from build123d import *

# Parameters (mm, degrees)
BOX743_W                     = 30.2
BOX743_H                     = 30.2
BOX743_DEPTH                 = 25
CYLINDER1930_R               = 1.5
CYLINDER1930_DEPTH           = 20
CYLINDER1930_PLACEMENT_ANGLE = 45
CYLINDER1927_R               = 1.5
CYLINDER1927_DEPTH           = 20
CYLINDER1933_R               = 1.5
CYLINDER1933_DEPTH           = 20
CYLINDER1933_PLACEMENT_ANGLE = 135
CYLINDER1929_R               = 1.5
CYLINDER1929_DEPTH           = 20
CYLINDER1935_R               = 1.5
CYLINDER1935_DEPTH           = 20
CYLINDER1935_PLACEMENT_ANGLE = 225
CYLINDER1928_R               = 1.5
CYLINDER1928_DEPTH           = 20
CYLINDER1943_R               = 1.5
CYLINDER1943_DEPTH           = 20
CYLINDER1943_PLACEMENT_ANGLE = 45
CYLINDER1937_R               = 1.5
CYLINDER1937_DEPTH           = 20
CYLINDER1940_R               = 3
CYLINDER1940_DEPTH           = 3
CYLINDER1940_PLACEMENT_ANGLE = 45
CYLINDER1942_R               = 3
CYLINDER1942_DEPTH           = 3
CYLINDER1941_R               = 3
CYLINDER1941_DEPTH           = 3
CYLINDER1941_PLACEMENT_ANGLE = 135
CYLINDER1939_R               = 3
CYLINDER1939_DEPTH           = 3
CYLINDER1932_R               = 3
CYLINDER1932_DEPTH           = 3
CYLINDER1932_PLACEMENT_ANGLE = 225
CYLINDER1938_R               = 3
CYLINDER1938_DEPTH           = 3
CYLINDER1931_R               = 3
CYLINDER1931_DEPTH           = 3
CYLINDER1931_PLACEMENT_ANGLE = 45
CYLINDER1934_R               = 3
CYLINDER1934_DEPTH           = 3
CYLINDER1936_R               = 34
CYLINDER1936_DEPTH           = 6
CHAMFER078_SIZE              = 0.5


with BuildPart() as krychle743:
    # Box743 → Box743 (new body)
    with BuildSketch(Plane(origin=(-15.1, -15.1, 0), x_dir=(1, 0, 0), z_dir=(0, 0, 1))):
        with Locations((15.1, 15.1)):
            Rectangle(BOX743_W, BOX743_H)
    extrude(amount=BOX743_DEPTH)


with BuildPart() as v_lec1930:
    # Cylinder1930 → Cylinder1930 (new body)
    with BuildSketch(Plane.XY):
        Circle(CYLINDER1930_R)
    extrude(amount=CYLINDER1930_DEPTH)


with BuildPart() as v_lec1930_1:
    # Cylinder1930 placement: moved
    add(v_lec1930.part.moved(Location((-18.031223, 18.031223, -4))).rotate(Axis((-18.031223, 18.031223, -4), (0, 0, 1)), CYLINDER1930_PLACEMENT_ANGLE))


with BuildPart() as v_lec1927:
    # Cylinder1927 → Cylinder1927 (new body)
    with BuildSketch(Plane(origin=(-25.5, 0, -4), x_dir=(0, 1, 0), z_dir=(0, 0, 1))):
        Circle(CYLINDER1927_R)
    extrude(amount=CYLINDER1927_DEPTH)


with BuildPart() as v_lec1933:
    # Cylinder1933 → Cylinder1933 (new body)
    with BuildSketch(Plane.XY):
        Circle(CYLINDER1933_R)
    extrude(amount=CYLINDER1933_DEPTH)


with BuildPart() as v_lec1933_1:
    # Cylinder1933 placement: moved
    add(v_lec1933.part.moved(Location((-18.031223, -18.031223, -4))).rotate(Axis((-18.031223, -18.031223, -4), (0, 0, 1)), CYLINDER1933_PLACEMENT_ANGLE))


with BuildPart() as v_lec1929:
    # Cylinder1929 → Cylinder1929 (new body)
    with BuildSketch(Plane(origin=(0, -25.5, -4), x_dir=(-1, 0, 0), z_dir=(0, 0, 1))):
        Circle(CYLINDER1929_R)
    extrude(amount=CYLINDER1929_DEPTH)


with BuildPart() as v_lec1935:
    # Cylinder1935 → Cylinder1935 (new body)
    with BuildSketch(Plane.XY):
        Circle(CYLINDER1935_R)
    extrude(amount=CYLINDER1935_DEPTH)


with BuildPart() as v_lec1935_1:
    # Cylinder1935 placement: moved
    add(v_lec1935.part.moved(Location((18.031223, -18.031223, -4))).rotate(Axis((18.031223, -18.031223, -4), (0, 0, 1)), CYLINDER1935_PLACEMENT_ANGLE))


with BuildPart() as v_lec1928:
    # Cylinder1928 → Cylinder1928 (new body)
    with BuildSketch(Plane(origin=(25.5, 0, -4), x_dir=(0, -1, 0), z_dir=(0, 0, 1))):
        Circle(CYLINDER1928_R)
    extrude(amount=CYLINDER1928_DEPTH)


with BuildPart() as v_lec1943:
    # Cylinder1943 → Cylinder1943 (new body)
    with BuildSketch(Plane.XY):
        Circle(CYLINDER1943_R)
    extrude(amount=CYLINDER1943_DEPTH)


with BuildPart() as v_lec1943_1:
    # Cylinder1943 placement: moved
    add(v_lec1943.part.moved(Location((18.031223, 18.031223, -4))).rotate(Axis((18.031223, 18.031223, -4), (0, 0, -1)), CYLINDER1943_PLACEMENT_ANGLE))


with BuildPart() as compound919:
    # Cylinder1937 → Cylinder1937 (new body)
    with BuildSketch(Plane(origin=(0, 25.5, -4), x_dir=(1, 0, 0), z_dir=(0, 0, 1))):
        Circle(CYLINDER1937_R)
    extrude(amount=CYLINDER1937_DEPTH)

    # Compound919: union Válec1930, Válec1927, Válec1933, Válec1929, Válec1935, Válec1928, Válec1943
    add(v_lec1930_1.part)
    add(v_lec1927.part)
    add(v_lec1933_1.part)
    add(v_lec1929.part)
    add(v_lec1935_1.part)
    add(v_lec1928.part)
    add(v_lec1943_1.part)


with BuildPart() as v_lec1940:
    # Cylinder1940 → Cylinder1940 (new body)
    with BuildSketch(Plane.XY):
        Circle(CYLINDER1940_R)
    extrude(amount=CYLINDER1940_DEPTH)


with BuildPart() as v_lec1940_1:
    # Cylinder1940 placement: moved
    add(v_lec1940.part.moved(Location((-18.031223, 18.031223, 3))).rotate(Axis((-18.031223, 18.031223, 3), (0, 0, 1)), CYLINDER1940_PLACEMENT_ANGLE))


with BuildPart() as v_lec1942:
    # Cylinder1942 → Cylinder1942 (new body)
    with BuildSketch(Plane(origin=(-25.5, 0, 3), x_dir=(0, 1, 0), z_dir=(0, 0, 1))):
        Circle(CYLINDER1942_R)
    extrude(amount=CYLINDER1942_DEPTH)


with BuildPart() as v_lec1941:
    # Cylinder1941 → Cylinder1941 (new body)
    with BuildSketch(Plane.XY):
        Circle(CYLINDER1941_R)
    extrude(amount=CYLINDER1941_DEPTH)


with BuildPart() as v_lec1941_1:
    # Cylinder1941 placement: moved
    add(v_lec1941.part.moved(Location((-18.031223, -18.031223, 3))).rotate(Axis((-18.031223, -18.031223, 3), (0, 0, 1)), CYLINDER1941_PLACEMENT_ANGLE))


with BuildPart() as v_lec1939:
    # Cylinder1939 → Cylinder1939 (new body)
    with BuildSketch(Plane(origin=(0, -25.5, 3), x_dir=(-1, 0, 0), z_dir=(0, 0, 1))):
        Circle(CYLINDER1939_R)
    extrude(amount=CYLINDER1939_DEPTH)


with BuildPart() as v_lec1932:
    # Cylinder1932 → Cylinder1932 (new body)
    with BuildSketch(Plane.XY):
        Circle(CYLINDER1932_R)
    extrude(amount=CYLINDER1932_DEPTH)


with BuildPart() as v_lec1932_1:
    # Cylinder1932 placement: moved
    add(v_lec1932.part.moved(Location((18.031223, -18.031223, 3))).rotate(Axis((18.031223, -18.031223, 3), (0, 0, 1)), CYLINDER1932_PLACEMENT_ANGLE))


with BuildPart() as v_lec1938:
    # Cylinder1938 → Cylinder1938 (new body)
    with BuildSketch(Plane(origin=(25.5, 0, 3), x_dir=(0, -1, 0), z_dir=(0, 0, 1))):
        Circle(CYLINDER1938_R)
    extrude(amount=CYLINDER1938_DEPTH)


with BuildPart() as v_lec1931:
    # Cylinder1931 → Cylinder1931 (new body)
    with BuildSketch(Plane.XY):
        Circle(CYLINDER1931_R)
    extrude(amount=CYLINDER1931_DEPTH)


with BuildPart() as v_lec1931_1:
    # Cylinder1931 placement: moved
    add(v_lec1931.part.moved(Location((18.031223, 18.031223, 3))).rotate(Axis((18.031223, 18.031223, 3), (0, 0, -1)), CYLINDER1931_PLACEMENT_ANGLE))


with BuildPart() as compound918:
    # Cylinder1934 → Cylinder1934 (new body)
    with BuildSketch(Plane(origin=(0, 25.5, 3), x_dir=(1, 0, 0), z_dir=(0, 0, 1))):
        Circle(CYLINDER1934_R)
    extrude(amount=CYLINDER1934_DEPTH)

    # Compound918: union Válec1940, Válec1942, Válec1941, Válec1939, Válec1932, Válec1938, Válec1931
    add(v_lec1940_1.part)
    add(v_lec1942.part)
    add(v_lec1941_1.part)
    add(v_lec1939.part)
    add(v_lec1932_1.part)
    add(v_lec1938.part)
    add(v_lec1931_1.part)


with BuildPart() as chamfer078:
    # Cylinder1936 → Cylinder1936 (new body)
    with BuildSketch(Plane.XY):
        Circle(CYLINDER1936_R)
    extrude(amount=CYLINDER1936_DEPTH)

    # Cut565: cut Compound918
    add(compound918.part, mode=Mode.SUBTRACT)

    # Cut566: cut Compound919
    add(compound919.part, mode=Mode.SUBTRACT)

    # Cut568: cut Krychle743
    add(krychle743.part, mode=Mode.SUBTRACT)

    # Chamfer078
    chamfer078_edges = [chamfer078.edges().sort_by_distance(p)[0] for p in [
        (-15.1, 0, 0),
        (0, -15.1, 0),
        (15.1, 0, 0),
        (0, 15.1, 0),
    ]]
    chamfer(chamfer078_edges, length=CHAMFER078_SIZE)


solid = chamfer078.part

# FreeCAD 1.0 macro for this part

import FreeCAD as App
import Part
import Sketcher
Q = App.Units.Quantity


def edges_at(feature, points):
    """Names of the edges that pass closest to the given points."""
    edges = feature.Shape.Edges
    near = lambda p: min(range(len(edges)), key=lambda i: edges[i].distToShape(Part.Vertex(*p))[0])
    return sorted({f"Edge{near(p) + 1}" for p in points})

doc = App.newDocument("Part")
body = doc.addObject("PartDesign::Body", "Body")

sketch1 = body.newObject("Sketcher::SketchObject", "Sketch")
sketch1.AttachmentSupport = (doc.getObject("XY_Plane"), [""])
sketch1.MapMode = "FlatFace"
sketch1.addGeometry([
    Part.LineSegment(App.Vector(-15, 15, 0), App.Vector(-15, -15, 0)),
    Part.LineSegment(App.Vector(-15, -15, 0), App.Vector(15, -15, 0)),
    Part.LineSegment(App.Vector(15, -15, 0), App.Vector(15, 15, 0)),
    Part.LineSegment(App.Vector(15, 15, 0), App.Vector(-15, 15, 0)),
], False)
sketch1.addConstraint([
    Sketcher.Constraint("Coincident", 0, 2, 1, 1),
    Sketcher.Constraint("Coincident", 1, 2, 2, 1),
    Sketcher.Constraint("Coincident", 2, 2, 3, 1),
    Sketcher.Constraint("Coincident", 3, 2, 0, 1),
    Sketcher.Constraint("Vertical", 0),
    Sketcher.Constraint("Horizontal", 1),
    Sketcher.Constraint("Vertical", 2),
    Sketcher.Constraint("Horizontal", 3),
    Sketcher.Constraint("Symmetric", 0, 2, 2, 2, -1, 1),
    Sketcher.Constraint("Equal", 3, 0),
    Sketcher.Constraint("DistanceX", 1, 1, 1, 2, Q("30.2 mm")),
])
pad1 = body.newObject("PartDesign::Pad", "Pad")
pad1.Profile = sketch1
pad1.Length = 25
body2 = doc.addObject("PartDesign::Body", "Body001")

sketch2 = body2.newObject("Sketcher::SketchObject", "Sketch001")
sketch2.AttachmentSupport = (doc.getObject("XY_Plane001"), [""])
sketch2.MapMode = "FlatFace"
sketch2.addGeometry(Part.Circle(App.Vector(0, 0, 0), App.Vector(0, 0, 1), 1.5), False)
sketch2.addConstraint([
    Sketcher.Constraint("Coincident", 0, 3, -1, 1),
    Sketcher.Constraint("Diameter", 0, Q("3 mm")),
])
pad2 = body2.newObject("PartDesign::Pad", "Pad001")
pad2.Profile = sketch2
pad2.Length = 20
body3 = doc.addObject("PartDesign::Body", "Body002")
doc.recompute()

body2.Placement = App.Placement(App.Vector(-18.031223, 18.031223, -4), App.Rotation(App.Vector(0, 0, 1), 45))
boolean = body3.newObject("PartDesign::Boolean", "Boolean")
boolean.Type = "Fuse"
boolean.addObjects([body2])
body4 = doc.addObject("PartDesign::Body", "Body003")

sketch3 = body4.newObject("Sketcher::SketchObject", "Sketch002")
sketch3.AttachmentSupport = (doc.getObject("XY_Plane003"), [""])
sketch3.MapMode = "FlatFace"
sketch3.AttachmentOffset = App.Placement(App.Vector(0, 0, -4), App.Rotation())
sketch3.addGeometry(Part.Circle(App.Vector(-25.5, 0, 0), App.Vector(0, 0, 1), 1.5), False)
sketch3.addConstraint([
    Sketcher.Constraint("PointOnObject", 0, 3, -1),
    Sketcher.Constraint("Diameter", 0, Q("3 mm")),
    Sketcher.Constraint("DistanceX", 0, 3, -1, 1, Q("25.5 mm")),
])
pad3 = body4.newObject("PartDesign::Pad", "Pad002")
pad3.Profile = sketch3
pad3.Length = 20
body5 = doc.addObject("PartDesign::Body", "Body004")

sketch4 = body5.newObject("Sketcher::SketchObject", "Sketch003")
sketch4.AttachmentSupport = (doc.getObject("XY_Plane004"), [""])
sketch4.MapMode = "FlatFace"
sketch4.addGeometry(Part.Circle(App.Vector(0, 0, 0), App.Vector(0, 0, 1), 1.5), False)
sketch4.addConstraint([
    Sketcher.Constraint("Coincident", 0, 3, -1, 1),
    Sketcher.Constraint("Diameter", 0, Q("3 mm")),
])
pad4 = body5.newObject("PartDesign::Pad", "Pad003")
pad4.Profile = sketch4
pad4.Length = 20
body6 = doc.addObject("PartDesign::Body", "Body005")
doc.recompute()

body5.Placement = App.Placement(App.Vector(-18.031223, -18.031223, -4), App.Rotation(App.Vector(0, 0, 1), 135))
boolean2 = body6.newObject("PartDesign::Boolean", "Boolean001")
boolean2.Type = "Fuse"
boolean2.addObjects([body5])
body7 = doc.addObject("PartDesign::Body", "Body006")

sketch5 = body7.newObject("Sketcher::SketchObject", "Sketch004")
sketch5.AttachmentSupport = (doc.getObject("XY_Plane006"), [""])
sketch5.MapMode = "FlatFace"
sketch5.AttachmentOffset = App.Placement(App.Vector(0, 0, -4), App.Rotation())
sketch5.addGeometry(Part.Circle(App.Vector(0, -25.5, 0), App.Vector(0, 0, 1), 1.5), False)
sketch5.addConstraint([
    Sketcher.Constraint("PointOnObject", 0, 3, -2),
    Sketcher.Constraint("Diameter", 0, Q("3 mm")),
    Sketcher.Constraint("DistanceY", 0, 3, -1, 1, Q("25.5 mm")),
])
pad5 = body7.newObject("PartDesign::Pad", "Pad004")
pad5.Profile = sketch5
pad5.Length = 20
body8 = doc.addObject("PartDesign::Body", "Body007")

sketch6 = body8.newObject("Sketcher::SketchObject", "Sketch005")
sketch6.AttachmentSupport = (doc.getObject("XY_Plane007"), [""])
sketch6.MapMode = "FlatFace"
sketch6.addGeometry(Part.Circle(App.Vector(0, 0, 0), App.Vector(0, 0, 1), 1.5), False)
sketch6.addConstraint([
    Sketcher.Constraint("Coincident", 0, 3, -1, 1),
    Sketcher.Constraint("Diameter", 0, Q("3 mm")),
])
pad6 = body8.newObject("PartDesign::Pad", "Pad005")
pad6.Profile = sketch6
pad6.Length = 20
body9 = doc.addObject("PartDesign::Body", "Body008")
doc.recompute()

body8.Placement = App.Placement(App.Vector(18.031223, -18.031223, -4), App.Rotation(App.Vector(0, 0, 1), 225))
boolean3 = body9.newObject("PartDesign::Boolean", "Boolean002")
boolean3.Type = "Fuse"
boolean3.addObjects([body8])
body10 = doc.addObject("PartDesign::Body", "Body009")

sketch7 = body10.newObject("Sketcher::SketchObject", "Sketch006")
sketch7.AttachmentSupport = (doc.getObject("XY_Plane009"), [""])
sketch7.MapMode = "FlatFace"
sketch7.AttachmentOffset = App.Placement(App.Vector(0, 0, -4), App.Rotation())
sketch7.addGeometry(Part.Circle(App.Vector(25.5, 0, 0), App.Vector(0, 0, 1), 1.5), False)
sketch7.addConstraint([
    Sketcher.Constraint("PointOnObject", 0, 3, -1),
    Sketcher.Constraint("Diameter", 0, Q("3 mm")),
    Sketcher.Constraint("DistanceX", -1, 1, 0, 3, Q("25.5 mm")),
])
pad7 = body10.newObject("PartDesign::Pad", "Pad006")
pad7.Profile = sketch7
pad7.Length = 20
body11 = doc.addObject("PartDesign::Body", "Body010")

sketch8 = body11.newObject("Sketcher::SketchObject", "Sketch007")
sketch8.AttachmentSupport = (doc.getObject("XY_Plane010"), [""])
sketch8.MapMode = "FlatFace"
sketch8.addGeometry(Part.Circle(App.Vector(0, 0, 0), App.Vector(0, 0, 1), 1.5), False)
sketch8.addConstraint([
    Sketcher.Constraint("Coincident", 0, 3, -1, 1),
    Sketcher.Constraint("Diameter", 0, Q("3 mm")),
])
pad8 = body11.newObject("PartDesign::Pad", "Pad007")
pad8.Profile = sketch8
pad8.Length = 20
body12 = doc.addObject("PartDesign::Body", "Body011")
doc.recompute()

body11.Placement = App.Placement(App.Vector(18.031223, 18.031223, -4), App.Rotation(App.Vector(0, 0, -1), 45))
boolean4 = body12.newObject("PartDesign::Boolean", "Boolean003")
boolean4.Type = "Fuse"
boolean4.addObjects([body11])
body13 = doc.addObject("PartDesign::Body", "Body012")
body13.AllowCompound = True

sketch9 = body13.newObject("Sketcher::SketchObject", "Sketch008")
sketch9.AttachmentSupport = (doc.getObject("XY_Plane012"), [""])
sketch9.MapMode = "FlatFace"
sketch9.AttachmentOffset = App.Placement(App.Vector(0, 0, -4), App.Rotation())
sketch9.addGeometry(Part.Circle(App.Vector(0, 25.5, 0), App.Vector(0, 0, 1), 1.5), False)
sketch9.addConstraint([
    Sketcher.Constraint("PointOnObject", 0, 3, -2),
    Sketcher.Constraint("Diameter", 0, Q("3 mm")),
    Sketcher.Constraint("DistanceY", -1, 1, 0, 3, Q("25.5 mm")),
])
pad9 = body13.newObject("PartDesign::Pad", "Pad008")
pad9.Profile = sketch9
pad9.Length = 20
doc.recompute()

boolean5 = body13.newObject("PartDesign::Boolean", "Boolean004")
boolean5.Type = "Fuse"
boolean5.addObjects([body3])
doc.recompute()

boolean6 = body13.newObject("PartDesign::Boolean", "Boolean005")
boolean6.Type = "Fuse"
boolean6.addObjects([body4])
doc.recompute()

boolean7 = body13.newObject("PartDesign::Boolean", "Boolean006")
boolean7.Type = "Fuse"
boolean7.addObjects([body6])
doc.recompute()

boolean8 = body13.newObject("PartDesign::Boolean", "Boolean007")
boolean8.Type = "Fuse"
boolean8.addObjects([body7])
doc.recompute()

boolean9 = body13.newObject("PartDesign::Boolean", "Boolean008")
boolean9.Type = "Fuse"
boolean9.addObjects([body9])
doc.recompute()

boolean10 = body13.newObject("PartDesign::Boolean", "Boolean009")
boolean10.Type = "Fuse"
boolean10.addObjects([body10])
doc.recompute()

boolean11 = body13.newObject("PartDesign::Boolean", "Boolean010")
boolean11.Type = "Fuse"
boolean11.addObjects([body12])
body14 = doc.addObject("PartDesign::Body", "Body013")

sketch10 = body14.newObject("Sketcher::SketchObject", "Sketch009")
sketch10.AttachmentSupport = (doc.getObject("XY_Plane013"), [""])
sketch10.MapMode = "FlatFace"
sketch10.addGeometry(Part.Circle(App.Vector(0, 0, 0), App.Vector(0, 0, 1), 3), False)
sketch10.addConstraint([
    Sketcher.Constraint("Coincident", 0, 3, -1, 1),
    Sketcher.Constraint("Diameter", 0, Q("6 mm")),
])
pad10 = body14.newObject("PartDesign::Pad", "Pad009")
pad10.Profile = sketch10
pad10.Length = 3
body15 = doc.addObject("PartDesign::Body", "Body014")
doc.recompute()

body14.Placement = App.Placement(App.Vector(-18.031223, 18.031223, 3), App.Rotation(App.Vector(0, 0, 1), 45))
boolean12 = body15.newObject("PartDesign::Boolean", "Boolean011")
boolean12.Type = "Fuse"
boolean12.addObjects([body14])
body16 = doc.addObject("PartDesign::Body", "Body015")

sketch11 = body16.newObject("Sketcher::SketchObject", "Sketch010")
sketch11.AttachmentSupport = (doc.getObject("XY_Plane015"), [""])
sketch11.MapMode = "FlatFace"
sketch11.AttachmentOffset = App.Placement(App.Vector(0, 0, 3), App.Rotation())
sketch11.addGeometry(Part.Circle(App.Vector(-25.5, 0, 0), App.Vector(0, 0, 1), 3), False)
sketch11.addConstraint([
    Sketcher.Constraint("PointOnObject", 0, 3, -1),
    Sketcher.Constraint("Diameter", 0, Q("6 mm")),
    Sketcher.Constraint("DistanceX", 0, 3, -1, 1, Q("25.5 mm")),
])
pad11 = body16.newObject("PartDesign::Pad", "Pad010")
pad11.Profile = sketch11
pad11.Length = 3
body17 = doc.addObject("PartDesign::Body", "Body016")

sketch12 = body17.newObject("Sketcher::SketchObject", "Sketch011")
sketch12.AttachmentSupport = (doc.getObject("XY_Plane016"), [""])
sketch12.MapMode = "FlatFace"
sketch12.addGeometry(Part.Circle(App.Vector(0, 0, 0), App.Vector(0, 0, 1), 3), False)
sketch12.addConstraint([
    Sketcher.Constraint("Coincident", 0, 3, -1, 1),
    Sketcher.Constraint("Diameter", 0, Q("6 mm")),
])
pad12 = body17.newObject("PartDesign::Pad", "Pad011")
pad12.Profile = sketch12
pad12.Length = 3
body18 = doc.addObject("PartDesign::Body", "Body017")
doc.recompute()

body17.Placement = App.Placement(App.Vector(-18.031223, -18.031223, 3), App.Rotation(App.Vector(0, 0, 1), 135))
boolean13 = body18.newObject("PartDesign::Boolean", "Boolean012")
boolean13.Type = "Fuse"
boolean13.addObjects([body17])
body19 = doc.addObject("PartDesign::Body", "Body018")

sketch13 = body19.newObject("Sketcher::SketchObject", "Sketch012")
sketch13.AttachmentSupport = (doc.getObject("XY_Plane018"), [""])
sketch13.MapMode = "FlatFace"
sketch13.AttachmentOffset = App.Placement(App.Vector(0, 0, 3), App.Rotation())
sketch13.addGeometry(Part.Circle(App.Vector(0, -25.5, 0), App.Vector(0, 0, 1), 3), False)
sketch13.addConstraint([
    Sketcher.Constraint("PointOnObject", 0, 3, -2),
    Sketcher.Constraint("Diameter", 0, Q("6 mm")),
    Sketcher.Constraint("DistanceY", 0, 3, -1, 1, Q("25.5 mm")),
])
pad13 = body19.newObject("PartDesign::Pad", "Pad012")
pad13.Profile = sketch13
pad13.Length = 3
body20 = doc.addObject("PartDesign::Body", "Body019")

sketch14 = body20.newObject("Sketcher::SketchObject", "Sketch013")
sketch14.AttachmentSupport = (doc.getObject("XY_Plane019"), [""])
sketch14.MapMode = "FlatFace"
sketch14.addGeometry(Part.Circle(App.Vector(0, 0, 0), App.Vector(0, 0, 1), 3), False)
sketch14.addConstraint([
    Sketcher.Constraint("Coincident", 0, 3, -1, 1),
    Sketcher.Constraint("Diameter", 0, Q("6 mm")),
])
pad14 = body20.newObject("PartDesign::Pad", "Pad013")
pad14.Profile = sketch14
pad14.Length = 3
body21 = doc.addObject("PartDesign::Body", "Body020")
doc.recompute()

body20.Placement = App.Placement(App.Vector(18.031223, -18.031223, 3), App.Rotation(App.Vector(0, 0, 1), 225))
boolean14 = body21.newObject("PartDesign::Boolean", "Boolean013")
boolean14.Type = "Fuse"
boolean14.addObjects([body20])
body22 = doc.addObject("PartDesign::Body", "Body021")

sketch15 = body22.newObject("Sketcher::SketchObject", "Sketch014")
sketch15.AttachmentSupport = (doc.getObject("XY_Plane021"), [""])
sketch15.MapMode = "FlatFace"
sketch15.AttachmentOffset = App.Placement(App.Vector(0, 0, 3), App.Rotation())
sketch15.addGeometry(Part.Circle(App.Vector(25.5, 0, 0), App.Vector(0, 0, 1), 3), False)
sketch15.addConstraint([
    Sketcher.Constraint("PointOnObject", 0, 3, -1),
    Sketcher.Constraint("Diameter", 0, Q("6 mm")),
    Sketcher.Constraint("DistanceX", -1, 1, 0, 3, Q("25.5 mm")),
])
pad15 = body22.newObject("PartDesign::Pad", "Pad014")
pad15.Profile = sketch15
pad15.Length = 3
body23 = doc.addObject("PartDesign::Body", "Body022")

sketch16 = body23.newObject("Sketcher::SketchObject", "Sketch015")
sketch16.AttachmentSupport = (doc.getObject("XY_Plane022"), [""])
sketch16.MapMode = "FlatFace"
sketch16.addGeometry(Part.Circle(App.Vector(0, 0, 0), App.Vector(0, 0, 1), 3), False)
sketch16.addConstraint([
    Sketcher.Constraint("Coincident", 0, 3, -1, 1),
    Sketcher.Constraint("Diameter", 0, Q("6 mm")),
])
pad16 = body23.newObject("PartDesign::Pad", "Pad015")
pad16.Profile = sketch16
pad16.Length = 3
body24 = doc.addObject("PartDesign::Body", "Body023")
doc.recompute()

body23.Placement = App.Placement(App.Vector(18.031223, 18.031223, 3), App.Rotation(App.Vector(0, 0, -1), 45))
boolean15 = body24.newObject("PartDesign::Boolean", "Boolean014")
boolean15.Type = "Fuse"
boolean15.addObjects([body23])
body25 = doc.addObject("PartDesign::Body", "Body024")
body25.AllowCompound = True

sketch17 = body25.newObject("Sketcher::SketchObject", "Sketch016")
sketch17.AttachmentSupport = (doc.getObject("XY_Plane024"), [""])
sketch17.MapMode = "FlatFace"
sketch17.AttachmentOffset = App.Placement(App.Vector(0, 0, 3), App.Rotation())
sketch17.addGeometry(Part.Circle(App.Vector(0, 25.5, 0), App.Vector(0, 0, 1), 3), False)
sketch17.addConstraint([
    Sketcher.Constraint("PointOnObject", 0, 3, -2),
    Sketcher.Constraint("Diameter", 0, Q("6 mm")),
    Sketcher.Constraint("DistanceY", -1, 1, 0, 3, Q("25.5 mm")),
])
pad17 = body25.newObject("PartDesign::Pad", "Pad016")
pad17.Profile = sketch17
pad17.Length = 3
doc.recompute()

boolean16 = body25.newObject("PartDesign::Boolean", "Boolean015")
boolean16.Type = "Fuse"
boolean16.addObjects([body15])
doc.recompute()

boolean17 = body25.newObject("PartDesign::Boolean", "Boolean016")
boolean17.Type = "Fuse"
boolean17.addObjects([body16])
doc.recompute()

boolean18 = body25.newObject("PartDesign::Boolean", "Boolean017")
boolean18.Type = "Fuse"
boolean18.addObjects([body18])
doc.recompute()

boolean19 = body25.newObject("PartDesign::Boolean", "Boolean018")
boolean19.Type = "Fuse"
boolean19.addObjects([body19])
doc.recompute()

boolean20 = body25.newObject("PartDesign::Boolean", "Boolean019")
boolean20.Type = "Fuse"
boolean20.addObjects([body21])
doc.recompute()

boolean21 = body25.newObject("PartDesign::Boolean", "Boolean020")
boolean21.Type = "Fuse"
boolean21.addObjects([body22])
doc.recompute()

boolean22 = body25.newObject("PartDesign::Boolean", "Boolean021")
boolean22.Type = "Fuse"
boolean22.addObjects([body24])
body26 = doc.addObject("PartDesign::Body", "Body025")

sketch18 = body26.newObject("Sketcher::SketchObject", "Sketch017")
sketch18.AttachmentSupport = (doc.getObject("XY_Plane025"), [""])
sketch18.MapMode = "FlatFace"
sketch18.addGeometry(Part.Circle(App.Vector(0, 0, 0), App.Vector(0, 0, 1), 34), False)
sketch18.addConstraint([
    Sketcher.Constraint("Coincident", 0, 3, -1, 1),
    Sketcher.Constraint("Diameter", 0, Q("68 mm")),
])
pad18 = body26.newObject("PartDesign::Pad", "Pad017")
pad18.Profile = sketch18
pad18.Length = 6
doc.recompute()

boolean23 = body26.newObject("PartDesign::Boolean", "Boolean022")
boolean23.Type = "Cut"
boolean23.addObjects([body25])
doc.recompute()

boolean24 = body26.newObject("PartDesign::Boolean", "Boolean023")
boolean24.Type = "Cut"
boolean24.addObjects([body13])
doc.recompute()

boolean25 = body26.newObject("PartDesign::Boolean", "Boolean024")
boolean25.Type = "Cut"
boolean25.addObjects([body])
doc.recompute()

chamfer = body26.newObject("PartDesign::Chamfer", "Chamfer")
chamfer.Base = (boolean25, edges_at(boolean25, [
    (-15.1, 0, 0),
    (0, -15.1, 0),
    (15.1, 0, 0),
    (0, 15.1, 0),
]))
chamfer.Size = 0.5

doc.recompute()
